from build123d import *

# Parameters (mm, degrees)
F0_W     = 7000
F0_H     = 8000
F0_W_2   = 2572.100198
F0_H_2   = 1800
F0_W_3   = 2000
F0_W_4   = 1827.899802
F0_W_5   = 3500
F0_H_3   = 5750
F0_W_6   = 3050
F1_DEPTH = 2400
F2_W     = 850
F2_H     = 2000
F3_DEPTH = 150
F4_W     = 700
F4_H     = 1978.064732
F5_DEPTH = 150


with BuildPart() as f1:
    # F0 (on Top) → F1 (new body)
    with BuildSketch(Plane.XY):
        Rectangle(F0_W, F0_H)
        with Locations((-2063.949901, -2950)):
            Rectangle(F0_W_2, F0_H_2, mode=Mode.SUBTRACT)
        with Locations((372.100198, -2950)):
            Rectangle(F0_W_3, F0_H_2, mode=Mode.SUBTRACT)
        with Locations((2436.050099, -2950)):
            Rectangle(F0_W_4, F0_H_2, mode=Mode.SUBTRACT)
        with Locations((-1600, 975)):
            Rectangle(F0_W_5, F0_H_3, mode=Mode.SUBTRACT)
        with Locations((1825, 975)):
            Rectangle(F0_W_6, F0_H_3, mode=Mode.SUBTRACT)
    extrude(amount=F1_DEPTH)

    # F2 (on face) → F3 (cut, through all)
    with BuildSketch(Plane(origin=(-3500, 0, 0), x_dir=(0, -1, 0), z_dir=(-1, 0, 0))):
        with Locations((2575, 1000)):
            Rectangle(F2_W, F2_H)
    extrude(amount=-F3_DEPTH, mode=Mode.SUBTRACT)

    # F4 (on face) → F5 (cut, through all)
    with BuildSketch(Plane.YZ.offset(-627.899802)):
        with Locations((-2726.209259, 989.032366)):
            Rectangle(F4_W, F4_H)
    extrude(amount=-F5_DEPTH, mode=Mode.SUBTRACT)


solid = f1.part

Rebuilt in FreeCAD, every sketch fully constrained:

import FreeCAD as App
import Part
import Sketcher


def add_polygon(sketch, points):
    """Adds a closed chain of lines whose ends are joined by coincident constraints."""
    first, n = sketch.GeometryCount, len(points)
    for a, b in zip(points, points[1:] + points[:1]):
        sketch.addGeometry(Part.LineSegment(App.Vector(*a, 0), App.Vector(*b, 0)), False)
    for i in range(n):
        sketch.addConstraint(Sketcher.Constraint("Coincident", first + i, 2, first + (i + 1) % n, 1))

doc = App.newDocument("Part")
body = doc.addObject("PartDesign::Body", "Body")

# Sketch on XY plane
sketch1 = doc.addObject("Sketcher::SketchObject", "Sketch")
body.addObject(sketch1)
sketch1.AttachmentSupport = (doc.XY_Plane, [""])
sketch1.MapMode = "FlatFace"
add_polygon(sketch1, [(-3500, 4000), (-3500, -4000), (3500, -4000), (3500, 4000)])  # lines 0-3
add_polygon(sketch1, [(-777.899802, -3850), (-3350, -3850), (-3350, -2050), (-777.899802, -2050)])  # lines 4-7
add_polygon(sketch1, [(1372.100198, -3850), (-627.899802, -3850), (-627.899802, -2050), (1372.100198, -2050)])  # lines 8-11
add_polygon(sketch1, [(3350, -3850), (1522.100198, -3850), (1522.100198, -2050), (3350, -2050)])  # lines 12-15
add_polygon(sketch1, [(150, -1900), (-3350, -1900), (-3350, 3850), (150, 3850)])  # lines 16-19
add_polygon(sketch1, [(3350, -1900), (300, -1900), (300, 3850), (3350, 3850)])  # lines 20-23
sketch1.addConstraint([
    Sketcher.Constraint("Vertical", 0),
    Sketcher.Constraint("Horizontal", 1),
    Sketcher.Constraint("Vertical", 2),
    Sketcher.Constraint("Horizontal", 3),
    Sketcher.Constraint("Horizontal", 4),
    Sketcher.Constraint("Vertical", 5),
    Sketcher.Constraint("Horizontal", 6),
    Sketcher.Constraint("Vertical", 7),
    Sketcher.Constraint("Horizontal", 8),
    Sketcher.Constraint("Vertical", 9),
    Sketcher.Constraint("Horizontal", 10),
    Sketcher.Constraint("Vertical", 11),
    Sketcher.Constraint("Horizontal", 12),
    Sketcher.Constraint("Vertical", 13),
    Sketcher.Constraint("Horizontal", 14),
    Sketcher.Constraint("Vertical", 15),
    Sketcher.Constraint("Horizontal", 16),
    Sketcher.Constraint("Vertical", 17),
    Sketcher.Constraint("Horizontal", 18),
    Sketcher.Constraint("Vertical", 19),
    Sketcher.Constraint("Horizontal", 20),
    Sketcher.Constraint("Vertical", 21),
    Sketcher.Constraint("Horizontal", 22),
    Sketcher.Constraint("Vertical", 23),
    Sketcher.Constraint("Symmetric", 0, 2, 2, 2, -1, 1),
    Sketcher.Constraint("Symmetric", 15, 2, 17, 2, -1, 1),
    Sketcher.Constraint("Symmetric", 4, 2, 22, 2, -1, 1),
    Sketcher.Constraint("Symmetric", 5, 2, 14, 2, -2),
    Sketcher.Constraint("Horizontal", 7, 2, 8, 2),
    Sketcher.Constraint("Horizontal", 6, 2, 9, 2),
    Sketcher.Constraint("Horizontal", 11, 2, 12, 2),
    Sketcher.Constraint("Horizontal", 19, 2, 20, 2),
    Sketcher.Constraint("DistanceX", 1, 1, 1, 2, 7000.0),
    Sketcher.Constraint("DistanceX", 8, 2, 8, 1, 2000.0),
    Sketcher.Constraint("DistanceX", 16, 2, 16, 1, 3500.0),
    Sketcher.Constraint("DistanceX", 20, 2, 20, 1, 3050.0),
    Sketcher.Constraint("DistanceY", 0, 2, 0, 1, 8000.0),
    Sketcher.Constraint("DistanceY", 5, 1, 5, 2, 1800.0),
    Sketcher.Constraint("DistanceY", 17, 1, 17, 2, 5750.0),
    Sketcher.Constraint("DistanceX", 4, 2, -1, 1, 3350.0),
    Sketcher.Constraint("DistanceY", 4, 2, -1, 1, 3850.0),
    Sketcher.Constraint("DistanceX", 7, 2, 8, 2, 150.0),
    Sketcher.Constraint("DistanceX", 11, 2, 12, 2, 150.0),
    Sketcher.Constraint("DistanceX", 4, 2, 4, 1, 2572.100198),
])
pad1 = doc.addObject("PartDesign::Pad", "Pad")
body.addObject(pad1)
pad1.Profile = sketch1
pad1.Length = 2400

# Sketch on YZ plane
sketch2 = doc.addObject("Sketcher::SketchObject", "Sketch001")
body.addObject(sketch2)
sketch2.AttachmentSupport = (doc.YZ_Plane, [""])
sketch2.MapMode = "FlatFace"
sketch2.AttachmentOffset = App.Placement(App.Vector(0, 0, -3500), App.Rotation())
add_polygon(sketch2, [(-2150, 2000), (-2150, 0), (-3000, 0), (-3000, 2000)])  # lines 0-3
sketch2.addConstraint([
    Sketcher.Constraint("Vertical", 0),
    Sketcher.Constraint("Horizontal", 1),
    Sketcher.Constraint("Vertical", 2),
    Sketcher.Constraint("Horizontal", 3),
    Sketcher.Constraint("PointOnObject", 0, 2, -1),
    Sketcher.Constraint("DistanceX", 1, 2, 1, 1, 850.0),
    Sketcher.Constraint("DistanceY", 0, 2, 0, 1, 2000.0),
    Sketcher.Constraint("DistanceX", 0, 2, -1, 1, 2150.0),
])
pocket1 = doc.addObject("PartDesign::Pocket", "Pocket")
body.addObject(pocket1)
pocket1.Profile = sketch2
pocket1.Length = 150
pocket1.Reversed = True

# Sketch on YZ plane
sketch3 = doc.addObject("Sketcher::SketchObject", "Sketch002")
body.addObject(sketch3)
sketch3.AttachmentSupport = (doc.YZ_Plane, [""])
sketch3.MapMode = "FlatFace"
sketch3.AttachmentOffset = App.Placement(App.Vector(0, 0, -627.899802), App.Rotation())
add_polygon(sketch3, [(-3076.209259, 1978.064732), (-3076.209259, 0), (-2376.209259, 0), (-2376.209259, 1978.064732)])  # lines 0-3
sketch3.addConstraint([
    Sketcher.Constraint("Vertical", 0),
    Sketcher.Constraint("Horizontal", 1),
    Sketcher.Constraint("Vertical", 2),
    Sketcher.Constraint("Horizontal", 3),
    Sketcher.Constraint("PointOnObject", 0, 2, -1),
    Sketcher.Constraint("DistanceX", 1, 1, 1, 2, 700.0),
    Sketcher.Constraint("DistanceY", 0, 2, 0, 1, 1978.064732),
    Sketcher.Constraint("DistanceX", 0, 2, -1, 1, 3076.209259),
])
pocket2 = doc.addObject("PartDesign::Pocket", "Pocket001")
body.addObject(pocket2)
pocket2.Profile = sketch3
pocket2.Length = 150

doc.recompute()
